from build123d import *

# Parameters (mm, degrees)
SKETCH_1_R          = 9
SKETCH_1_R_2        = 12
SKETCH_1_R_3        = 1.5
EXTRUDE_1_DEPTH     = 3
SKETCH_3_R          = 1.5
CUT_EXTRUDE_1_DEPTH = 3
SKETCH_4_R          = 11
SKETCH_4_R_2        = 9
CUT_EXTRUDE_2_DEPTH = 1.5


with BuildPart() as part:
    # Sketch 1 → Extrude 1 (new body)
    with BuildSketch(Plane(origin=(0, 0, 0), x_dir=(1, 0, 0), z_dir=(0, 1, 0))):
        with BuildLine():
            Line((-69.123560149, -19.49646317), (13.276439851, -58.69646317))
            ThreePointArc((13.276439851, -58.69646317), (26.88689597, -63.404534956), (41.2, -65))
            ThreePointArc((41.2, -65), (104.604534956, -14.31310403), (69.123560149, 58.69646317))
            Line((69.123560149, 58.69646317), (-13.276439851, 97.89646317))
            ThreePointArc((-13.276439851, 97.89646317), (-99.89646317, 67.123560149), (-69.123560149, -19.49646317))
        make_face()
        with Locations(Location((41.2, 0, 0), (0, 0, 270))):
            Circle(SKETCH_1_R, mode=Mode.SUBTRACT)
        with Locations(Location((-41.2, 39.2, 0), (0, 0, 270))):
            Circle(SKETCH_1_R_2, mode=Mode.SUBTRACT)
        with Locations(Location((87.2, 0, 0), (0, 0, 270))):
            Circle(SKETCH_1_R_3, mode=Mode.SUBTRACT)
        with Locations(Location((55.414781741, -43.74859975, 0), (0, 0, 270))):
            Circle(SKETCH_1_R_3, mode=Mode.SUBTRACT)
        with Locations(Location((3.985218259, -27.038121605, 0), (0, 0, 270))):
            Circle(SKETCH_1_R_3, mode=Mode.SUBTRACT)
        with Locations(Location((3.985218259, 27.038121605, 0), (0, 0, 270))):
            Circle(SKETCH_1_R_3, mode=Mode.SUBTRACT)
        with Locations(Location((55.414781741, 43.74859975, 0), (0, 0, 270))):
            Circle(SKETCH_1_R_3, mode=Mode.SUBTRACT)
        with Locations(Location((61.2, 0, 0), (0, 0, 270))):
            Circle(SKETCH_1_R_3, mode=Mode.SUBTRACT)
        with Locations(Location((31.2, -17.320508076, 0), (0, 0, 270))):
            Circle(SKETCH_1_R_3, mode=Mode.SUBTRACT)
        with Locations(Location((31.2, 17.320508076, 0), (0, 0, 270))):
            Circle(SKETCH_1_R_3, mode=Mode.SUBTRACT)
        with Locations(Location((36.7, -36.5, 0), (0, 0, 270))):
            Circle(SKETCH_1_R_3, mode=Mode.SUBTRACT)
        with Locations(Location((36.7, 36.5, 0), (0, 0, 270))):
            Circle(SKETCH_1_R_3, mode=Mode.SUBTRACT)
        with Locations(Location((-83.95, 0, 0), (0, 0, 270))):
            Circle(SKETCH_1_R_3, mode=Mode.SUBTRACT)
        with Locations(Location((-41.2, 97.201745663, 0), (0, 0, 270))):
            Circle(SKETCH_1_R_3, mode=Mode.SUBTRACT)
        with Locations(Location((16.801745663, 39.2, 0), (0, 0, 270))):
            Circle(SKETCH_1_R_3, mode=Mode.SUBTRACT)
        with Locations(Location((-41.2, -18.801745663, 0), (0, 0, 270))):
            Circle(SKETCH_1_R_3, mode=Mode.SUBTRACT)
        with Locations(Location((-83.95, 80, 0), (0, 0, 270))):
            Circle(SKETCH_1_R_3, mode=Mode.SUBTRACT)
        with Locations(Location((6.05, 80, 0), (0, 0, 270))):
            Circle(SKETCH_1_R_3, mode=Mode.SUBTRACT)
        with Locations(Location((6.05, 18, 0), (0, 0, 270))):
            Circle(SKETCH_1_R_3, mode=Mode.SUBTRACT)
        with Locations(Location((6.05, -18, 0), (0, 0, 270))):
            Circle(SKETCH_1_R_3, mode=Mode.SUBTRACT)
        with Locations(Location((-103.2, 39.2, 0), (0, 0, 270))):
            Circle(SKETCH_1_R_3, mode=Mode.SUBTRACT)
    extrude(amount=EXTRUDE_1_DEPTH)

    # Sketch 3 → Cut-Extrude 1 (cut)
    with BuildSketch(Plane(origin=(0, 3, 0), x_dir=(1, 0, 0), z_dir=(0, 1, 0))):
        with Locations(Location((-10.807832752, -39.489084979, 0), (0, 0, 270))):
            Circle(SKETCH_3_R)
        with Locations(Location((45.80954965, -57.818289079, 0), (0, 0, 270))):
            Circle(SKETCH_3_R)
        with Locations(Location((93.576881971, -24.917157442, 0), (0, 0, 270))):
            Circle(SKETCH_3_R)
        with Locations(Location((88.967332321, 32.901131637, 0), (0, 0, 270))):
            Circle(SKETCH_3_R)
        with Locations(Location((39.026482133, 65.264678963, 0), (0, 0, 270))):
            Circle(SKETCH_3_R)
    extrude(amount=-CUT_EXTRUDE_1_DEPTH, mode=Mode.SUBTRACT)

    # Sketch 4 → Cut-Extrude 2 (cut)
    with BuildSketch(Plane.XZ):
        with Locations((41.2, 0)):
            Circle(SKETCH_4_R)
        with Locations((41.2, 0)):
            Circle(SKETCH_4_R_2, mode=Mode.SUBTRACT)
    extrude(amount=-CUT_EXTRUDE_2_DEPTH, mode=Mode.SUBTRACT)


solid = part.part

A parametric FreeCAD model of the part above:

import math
import FreeCAD as App
import Part
import Sketcher
from FreeCAD import Vector
Q = App.Units.Quantity

doc = App.newDocument("Part")
body = doc.addObject("PartDesign::Body", "Body")

sketch1 = body.newObject("Sketcher::SketchObject", "Sketch")
sketch1.AttachmentSupport = (doc.getObject("XZ_Plane"), [""])
sketch1.MapMode = "FlatFace"
sketch1.addGeometry([
    Part.LineSegment(Vector(-69.1, 19.5, 0), Vector(13.3, 58.7, 0)),
    Part.ArcOfCircle(Part.Circle(Vector(41.2, 0, 0), Vector(0, 0, 1), 65), math.radians(90), math.radians(115)),
    Part.ArcOfCircle(Part.Circle(Vector(41.2, 0, 0), Vector(0, 0, 1), 65), math.radians(-65), math.radians(90)),
    Part.LineSegment(Vector(69.1, -58.7, 0), Vector(-13.3, -97.9, 0)),
    Part.ArcOfCircle(Part.Circle(Vector(-41.2, -39.2, 0), Vector(0, 0, 1), 65), math.radians(115), math.radians(295)),
    Part.Circle(Vector(-41.2, 18.8, 0), Vector(0, 0, 1), 1.5),
    Part.Circle(Vector(-84, 0, 0), Vector(0, 0, 1), 1.5),
    Part.Circle(Vector(36.7, 36.5, 0), Vector(0, 0, 1), 1.5),
    Part.Circle(Vector(4, 27, 0), Vector(0, 0, 1), 1.5),
    Part.Circle(Vector(6, 18, 0), Vector(0, 0, 1), 1.5),
    Part.Circle(Vector(31.2, 17.3, 0), Vector(0, 0, 1), 1.5),
    Part.Circle(Vector(55.4, 43.7, 0), Vector(0, 0, 1), 1.5),
    Part.Circle(Vector(6, -18, 0), Vector(0, 0, 1), 1.5),
    Part.Circle(Vector(31.2, -17.3, 0), Vector(0, 0, 1), 1.5),
    Part.Circle(Vector(41.2, 0, 0), Vector(0, 0, 1), 9),
    Part.Circle(Vector(61.2, 0, 0), Vector(0, 0, 1), 1.5),
    Part.Circle(Vector(87.2, 0, 0), Vector(0, 0, 1), 1.5),
    Part.Circle(Vector(-103.2, -39.2, 0), Vector(0, 0, 1), 1.5),
    Part.Circle(Vector(-41.2, -39.2, 0), Vector(0, 0, 1), 12),
    Part.Circle(Vector(-84, -80, 0), Vector(0, 0, 1), 1.5),
    Part.Circle(Vector(-41.2, -97.2, 0), Vector(0, 0, 1), 1.5),
    Part.Circle(Vector(4, -27, 0), Vector(0, 0, 1), 1.5),
    Part.Circle(Vector(16.8, -39.2, 0), Vector(0, 0, 1), 1.5),
    Part.Circle(Vector(36.7, -36.5, 0), Vector(0, 0, 1), 1.5),
    Part.Circle(Vector(55.4, -43.7, 0), Vector(0, 0, 1), 1.5),
    Part.Circle(Vector(6, -80, 0), Vector(0, 0, 1), 1.5),
], False)
sketch1.addConstraint([
    Sketcher.Constraint("Tangent", 0, 2, 1, 2),
    Sketcher.Constraint("Tangent", 1, 1, 2, 2),
    Sketcher.Constraint("Tangent", 2, 1, 3, 1),
    Sketcher.Constraint("Tangent", 3, 2, 4, 2),
    Sketcher.Constraint("Tangent", 4, 1, 0, 1),
    Sketcher.Constraint("Coincident", 14, 3, 1, 3),
    Sketcher.Constraint("Coincident", 18, 3, 4, 3),
    Sketcher.Constraint("Equal", 1, 2),
    Sketcher.Constraint("Equal", 2, 4),
    Sketcher.Constraint("Equal", 5, 6),
    Sketcher.Constraint("Equal", 6, 7),
    Sketcher.Constraint("Equal", 7, 8),
    Sketcher.Constraint("Equal", 8, 9),
    Sketcher.Constraint("Equal", 9, 10),
    Sketcher.Constraint("Equal", 10, 11),
    Sketcher.Constraint("Equal", 11, 12),
    Sketcher.Constraint("Equal", 12, 13),
    Sketcher.Constraint("Equal", 13, 15),
    Sketcher.Constraint("Equal", 15, 16),
    Sketcher.Constraint("Equal", 16, 17),
    Sketcher.Constraint("Equal", 17, 19),
    Sketcher.Constraint("Equal", 19, 20),
    Sketcher.Constraint("Equal", 20, 21),
    Sketcher.Constraint("Equal", 21, 22),
    Sketcher.Constraint("Equal", 22, 23),
    Sketcher.Constraint("Equal", 23, 24),
    Sketcher.Constraint("Equal", 24, 25),
    Sketcher.Constraint("Symmetric", 9, 3, 12, 3, -1),
    Sketcher.Constraint("Symmetric", 10, 3, 13, 3, -1),
    Sketcher.Constraint("Symmetric", 8, 3, 21, 3, -1),
    Sketcher.Constraint("Symmetric", 7, 3, 23, 3, -1),
    Sketcher.Constraint("Symmetric", 11, 3, 24, 3, -1),
    Sketcher.Constraint("PointOnObject", 1, 3, -1),
    Sketcher.Constraint("PointOnObject", 6, 3, -1),
    Sketcher.Constraint("PointOnObject", 15, 3, -1),
    Sketcher.Constraint("PointOnObject", 16, 3, -1),
    Sketcher.Constraint("Horizontal", 4, 3, 17, 3),
    Sketcher.Constraint("Horizontal", 18, 3, 22, 3),
    Sketcher.Constraint("Horizontal", 19, 3, 25, 3),
    Sketcher.Constraint("Vertical", 4, 3, 5, 3),
    Sketcher.Constraint("Vertical", 6, 3, 19, 3),
    Sketcher.Constraint("Vertical", 18, 3, 20, 3),
    Sketcher.Constraint("Vertical", 12, 3, 25, 3),
    Sketcher.Constraint("Vertical", 14, 3, 1, 1),
    Sketcher.Constraint("Diameter", 5, Q("3 mm")),
    Sketcher.Constraint("Diameter", 14, Q("18 mm")),
    Sketcher.Constraint("Diameter", 18, Q("24 mm")),
    Sketcher.Constraint("Radius", 1, Q("65 mm")),
    Sketcher.Constraint("DistanceY", -1, 1, 9, 3, Q("18 mm")),
    Sketcher.Constraint("DistanceY", 19, 3, -1, 1, Q("80 mm")),
    Sketcher.Constraint("DistanceX", 10, 3, 2, 3, Q("10 mm")),
    Sketcher.Constraint("DistanceX", 1, 3, 15, 3, Q("20 mm")),
    Sketcher.Constraint("DistanceX", 15, 3, 16, 3, Q("26 mm")),
    Sketcher.Constraint("DistanceX", 17, 3, 4, 3, Q("62 mm")),
    Sketcher.Constraint("DistanceX", -1, 1, 1, 3, Q("41.2 mm")),
    Sketcher.Constraint("DistanceX", 4, 3, -1, 1, Q("41.2 mm")),
    Sketcher.Constraint("DistanceY", 4, 3, -1, 1, Q("39.2 mm")),
    Sketcher.Constraint("DistanceX", -1, 1, 7, 3, Q("36.7 mm")),
    Sketcher.Constraint("DistanceY", -1, 1, 7, 3, Q("36.5 mm")),
    Sketcher.Constraint("DistanceX", 6, 3, -1, 1, Q("83.95 mm")),
    Sketcher.Constraint("DistanceX", -1, 1, 9, 3, Q("6.05 mm")),
    Sketcher.Constraint("DistanceY", -1, 1, 11, 3, Q("43.7486 mm")),
    Sketcher.Constraint("DistanceX", -1, 1, 8, 3, Q("3.985218 mm")),
    Sketcher.Constraint("DistanceY", -1, 1, 8, 3, Q("27.038122 mm")),
    Sketcher.Constraint("DistanceY", -1, 1, 10, 3, Q("17.320508 mm")),
    Sketcher.Constraint("DistanceX", -1, 1, 11, 3, Q("55.414782 mm")),
    Sketcher.Constraint("DistanceY", -1, 1, 5, 3, Q("18.801746 mm")),
    Sketcher.Constraint("DistanceY", 20, 3, -1, 1, Q("97.201746 mm")),
    Sketcher.Constraint("DistanceX", -1, 1, 22, 3, Q("16.801746 mm")),
])
pad1 = body.newObject("PartDesign::Pad", "Pad")
pad1.Profile = sketch1
pad1.Length = 3
pad1.Reversed = True

sketch2 = body.newObject("Sketcher::SketchObject", "Sketch001")
sketch2.AttachmentSupport = (doc.getObject("XZ_Plane"), [""])
sketch2.MapMode = "FlatFace"
sketch2.AttachmentOffset = App.Placement(Vector(0, 0, -3), App.Rotation())
sketch2.addGeometry([
    Part.Circle(Vector(-10.8, 39.5, 0), Vector(0, 0, 1), 1.5),
    Part.Circle(Vector(45.8, 57.8, 0), Vector(0, 0, 1), 1.5),
    Part.Circle(Vector(93.6, 24.9, 0), Vector(0, 0, 1), 1.5),
    Part.Circle(Vector(89, -32.9, 0), Vector(0, 0, 1), 1.5),
    Part.Circle(Vector(39, -65.3, 0), Vector(0, 0, 1), 1.5),
], False)
sketch2.addConstraint([
    Sketcher.Constraint("Equal", 0, 1),
    Sketcher.Constraint("Equal", 1, 2),
    Sketcher.Constraint("Equal", 2, 3),
    Sketcher.Constraint("Equal", 3, 4),
    Sketcher.Constraint("Diameter", 0, Q("3 mm")),
    Sketcher.Constraint("DistanceX", 4, 3, 2, 3, Q("54.5504 mm")),
    Sketcher.Constraint("DistanceX", -1, 1, 1, 3, Q("45.80955 mm")),
    Sketcher.Constraint("DistanceY", -1, 1, 1, 3, Q("57.818289 mm")),
    Sketcher.Constraint("DistanceX", -1, 1, 2, 3, Q("93.576882 mm")),
    Sketcher.Constraint("DistanceY", 3, 3, -1, 1, Q("32.901132 mm")),
    Sketcher.Constraint("DistanceY", 4, 3, -1, 1, Q("65.264679 mm")),
    Sketcher.Constraint("DistanceY", 2, 3, 1, 3, Q("32.901132 mm")),
    Sketcher.Constraint("DistanceX", 3, 3, 2, 3, Q("4.60955 mm")),
    Sketcher.Constraint("DistanceX", 0, 3, -1, 1, Q("10.807833 mm")),
    Sketcher.Constraint("DistanceY", -1, 1, 0, 3, Q("39.489085 mm")),
])
pocket1 = body.newObject("PartDesign::Pocket", "Pocket")
pocket1.Profile = sketch2
pocket1.Length = 3
pocket1.Reversed = True

sketch3 = body.newObject("Sketcher::SketchObject", "Sketch002")
sketch3.AttachmentSupport = (doc.getObject("XZ_Plane"), [""])
sketch3.MapMode = "FlatFace"
sketch3.addGeometry([
    Part.Circle(Vector(41, 0, 0), Vector(0, 0, 1), 11),
    Part.Circle(Vector(41, 0, 0), Vector(0, 0, 1), 9),
], False)
sketch3.addConstraint([
    Sketcher.Constraint("Coincident", 1, 3, 0, 3),
    Sketcher.Constraint("PointOnObject", 0, 3, -1),
    Sketcher.Constraint("Diameter", 0, Q("22 mm")),
    Sketcher.Constraint("Diameter", 1, Q("18 mm")),
    Sketcher.Constraint("DistanceX", -1, 1, 0, 3, Q("41.2 mm")),
])
pocket2 = body.newObject("PartDesign::Pocket", "Pocket001")
pocket2.Profile = sketch3
pocket2.Length = 1.5

doc.recompute()
